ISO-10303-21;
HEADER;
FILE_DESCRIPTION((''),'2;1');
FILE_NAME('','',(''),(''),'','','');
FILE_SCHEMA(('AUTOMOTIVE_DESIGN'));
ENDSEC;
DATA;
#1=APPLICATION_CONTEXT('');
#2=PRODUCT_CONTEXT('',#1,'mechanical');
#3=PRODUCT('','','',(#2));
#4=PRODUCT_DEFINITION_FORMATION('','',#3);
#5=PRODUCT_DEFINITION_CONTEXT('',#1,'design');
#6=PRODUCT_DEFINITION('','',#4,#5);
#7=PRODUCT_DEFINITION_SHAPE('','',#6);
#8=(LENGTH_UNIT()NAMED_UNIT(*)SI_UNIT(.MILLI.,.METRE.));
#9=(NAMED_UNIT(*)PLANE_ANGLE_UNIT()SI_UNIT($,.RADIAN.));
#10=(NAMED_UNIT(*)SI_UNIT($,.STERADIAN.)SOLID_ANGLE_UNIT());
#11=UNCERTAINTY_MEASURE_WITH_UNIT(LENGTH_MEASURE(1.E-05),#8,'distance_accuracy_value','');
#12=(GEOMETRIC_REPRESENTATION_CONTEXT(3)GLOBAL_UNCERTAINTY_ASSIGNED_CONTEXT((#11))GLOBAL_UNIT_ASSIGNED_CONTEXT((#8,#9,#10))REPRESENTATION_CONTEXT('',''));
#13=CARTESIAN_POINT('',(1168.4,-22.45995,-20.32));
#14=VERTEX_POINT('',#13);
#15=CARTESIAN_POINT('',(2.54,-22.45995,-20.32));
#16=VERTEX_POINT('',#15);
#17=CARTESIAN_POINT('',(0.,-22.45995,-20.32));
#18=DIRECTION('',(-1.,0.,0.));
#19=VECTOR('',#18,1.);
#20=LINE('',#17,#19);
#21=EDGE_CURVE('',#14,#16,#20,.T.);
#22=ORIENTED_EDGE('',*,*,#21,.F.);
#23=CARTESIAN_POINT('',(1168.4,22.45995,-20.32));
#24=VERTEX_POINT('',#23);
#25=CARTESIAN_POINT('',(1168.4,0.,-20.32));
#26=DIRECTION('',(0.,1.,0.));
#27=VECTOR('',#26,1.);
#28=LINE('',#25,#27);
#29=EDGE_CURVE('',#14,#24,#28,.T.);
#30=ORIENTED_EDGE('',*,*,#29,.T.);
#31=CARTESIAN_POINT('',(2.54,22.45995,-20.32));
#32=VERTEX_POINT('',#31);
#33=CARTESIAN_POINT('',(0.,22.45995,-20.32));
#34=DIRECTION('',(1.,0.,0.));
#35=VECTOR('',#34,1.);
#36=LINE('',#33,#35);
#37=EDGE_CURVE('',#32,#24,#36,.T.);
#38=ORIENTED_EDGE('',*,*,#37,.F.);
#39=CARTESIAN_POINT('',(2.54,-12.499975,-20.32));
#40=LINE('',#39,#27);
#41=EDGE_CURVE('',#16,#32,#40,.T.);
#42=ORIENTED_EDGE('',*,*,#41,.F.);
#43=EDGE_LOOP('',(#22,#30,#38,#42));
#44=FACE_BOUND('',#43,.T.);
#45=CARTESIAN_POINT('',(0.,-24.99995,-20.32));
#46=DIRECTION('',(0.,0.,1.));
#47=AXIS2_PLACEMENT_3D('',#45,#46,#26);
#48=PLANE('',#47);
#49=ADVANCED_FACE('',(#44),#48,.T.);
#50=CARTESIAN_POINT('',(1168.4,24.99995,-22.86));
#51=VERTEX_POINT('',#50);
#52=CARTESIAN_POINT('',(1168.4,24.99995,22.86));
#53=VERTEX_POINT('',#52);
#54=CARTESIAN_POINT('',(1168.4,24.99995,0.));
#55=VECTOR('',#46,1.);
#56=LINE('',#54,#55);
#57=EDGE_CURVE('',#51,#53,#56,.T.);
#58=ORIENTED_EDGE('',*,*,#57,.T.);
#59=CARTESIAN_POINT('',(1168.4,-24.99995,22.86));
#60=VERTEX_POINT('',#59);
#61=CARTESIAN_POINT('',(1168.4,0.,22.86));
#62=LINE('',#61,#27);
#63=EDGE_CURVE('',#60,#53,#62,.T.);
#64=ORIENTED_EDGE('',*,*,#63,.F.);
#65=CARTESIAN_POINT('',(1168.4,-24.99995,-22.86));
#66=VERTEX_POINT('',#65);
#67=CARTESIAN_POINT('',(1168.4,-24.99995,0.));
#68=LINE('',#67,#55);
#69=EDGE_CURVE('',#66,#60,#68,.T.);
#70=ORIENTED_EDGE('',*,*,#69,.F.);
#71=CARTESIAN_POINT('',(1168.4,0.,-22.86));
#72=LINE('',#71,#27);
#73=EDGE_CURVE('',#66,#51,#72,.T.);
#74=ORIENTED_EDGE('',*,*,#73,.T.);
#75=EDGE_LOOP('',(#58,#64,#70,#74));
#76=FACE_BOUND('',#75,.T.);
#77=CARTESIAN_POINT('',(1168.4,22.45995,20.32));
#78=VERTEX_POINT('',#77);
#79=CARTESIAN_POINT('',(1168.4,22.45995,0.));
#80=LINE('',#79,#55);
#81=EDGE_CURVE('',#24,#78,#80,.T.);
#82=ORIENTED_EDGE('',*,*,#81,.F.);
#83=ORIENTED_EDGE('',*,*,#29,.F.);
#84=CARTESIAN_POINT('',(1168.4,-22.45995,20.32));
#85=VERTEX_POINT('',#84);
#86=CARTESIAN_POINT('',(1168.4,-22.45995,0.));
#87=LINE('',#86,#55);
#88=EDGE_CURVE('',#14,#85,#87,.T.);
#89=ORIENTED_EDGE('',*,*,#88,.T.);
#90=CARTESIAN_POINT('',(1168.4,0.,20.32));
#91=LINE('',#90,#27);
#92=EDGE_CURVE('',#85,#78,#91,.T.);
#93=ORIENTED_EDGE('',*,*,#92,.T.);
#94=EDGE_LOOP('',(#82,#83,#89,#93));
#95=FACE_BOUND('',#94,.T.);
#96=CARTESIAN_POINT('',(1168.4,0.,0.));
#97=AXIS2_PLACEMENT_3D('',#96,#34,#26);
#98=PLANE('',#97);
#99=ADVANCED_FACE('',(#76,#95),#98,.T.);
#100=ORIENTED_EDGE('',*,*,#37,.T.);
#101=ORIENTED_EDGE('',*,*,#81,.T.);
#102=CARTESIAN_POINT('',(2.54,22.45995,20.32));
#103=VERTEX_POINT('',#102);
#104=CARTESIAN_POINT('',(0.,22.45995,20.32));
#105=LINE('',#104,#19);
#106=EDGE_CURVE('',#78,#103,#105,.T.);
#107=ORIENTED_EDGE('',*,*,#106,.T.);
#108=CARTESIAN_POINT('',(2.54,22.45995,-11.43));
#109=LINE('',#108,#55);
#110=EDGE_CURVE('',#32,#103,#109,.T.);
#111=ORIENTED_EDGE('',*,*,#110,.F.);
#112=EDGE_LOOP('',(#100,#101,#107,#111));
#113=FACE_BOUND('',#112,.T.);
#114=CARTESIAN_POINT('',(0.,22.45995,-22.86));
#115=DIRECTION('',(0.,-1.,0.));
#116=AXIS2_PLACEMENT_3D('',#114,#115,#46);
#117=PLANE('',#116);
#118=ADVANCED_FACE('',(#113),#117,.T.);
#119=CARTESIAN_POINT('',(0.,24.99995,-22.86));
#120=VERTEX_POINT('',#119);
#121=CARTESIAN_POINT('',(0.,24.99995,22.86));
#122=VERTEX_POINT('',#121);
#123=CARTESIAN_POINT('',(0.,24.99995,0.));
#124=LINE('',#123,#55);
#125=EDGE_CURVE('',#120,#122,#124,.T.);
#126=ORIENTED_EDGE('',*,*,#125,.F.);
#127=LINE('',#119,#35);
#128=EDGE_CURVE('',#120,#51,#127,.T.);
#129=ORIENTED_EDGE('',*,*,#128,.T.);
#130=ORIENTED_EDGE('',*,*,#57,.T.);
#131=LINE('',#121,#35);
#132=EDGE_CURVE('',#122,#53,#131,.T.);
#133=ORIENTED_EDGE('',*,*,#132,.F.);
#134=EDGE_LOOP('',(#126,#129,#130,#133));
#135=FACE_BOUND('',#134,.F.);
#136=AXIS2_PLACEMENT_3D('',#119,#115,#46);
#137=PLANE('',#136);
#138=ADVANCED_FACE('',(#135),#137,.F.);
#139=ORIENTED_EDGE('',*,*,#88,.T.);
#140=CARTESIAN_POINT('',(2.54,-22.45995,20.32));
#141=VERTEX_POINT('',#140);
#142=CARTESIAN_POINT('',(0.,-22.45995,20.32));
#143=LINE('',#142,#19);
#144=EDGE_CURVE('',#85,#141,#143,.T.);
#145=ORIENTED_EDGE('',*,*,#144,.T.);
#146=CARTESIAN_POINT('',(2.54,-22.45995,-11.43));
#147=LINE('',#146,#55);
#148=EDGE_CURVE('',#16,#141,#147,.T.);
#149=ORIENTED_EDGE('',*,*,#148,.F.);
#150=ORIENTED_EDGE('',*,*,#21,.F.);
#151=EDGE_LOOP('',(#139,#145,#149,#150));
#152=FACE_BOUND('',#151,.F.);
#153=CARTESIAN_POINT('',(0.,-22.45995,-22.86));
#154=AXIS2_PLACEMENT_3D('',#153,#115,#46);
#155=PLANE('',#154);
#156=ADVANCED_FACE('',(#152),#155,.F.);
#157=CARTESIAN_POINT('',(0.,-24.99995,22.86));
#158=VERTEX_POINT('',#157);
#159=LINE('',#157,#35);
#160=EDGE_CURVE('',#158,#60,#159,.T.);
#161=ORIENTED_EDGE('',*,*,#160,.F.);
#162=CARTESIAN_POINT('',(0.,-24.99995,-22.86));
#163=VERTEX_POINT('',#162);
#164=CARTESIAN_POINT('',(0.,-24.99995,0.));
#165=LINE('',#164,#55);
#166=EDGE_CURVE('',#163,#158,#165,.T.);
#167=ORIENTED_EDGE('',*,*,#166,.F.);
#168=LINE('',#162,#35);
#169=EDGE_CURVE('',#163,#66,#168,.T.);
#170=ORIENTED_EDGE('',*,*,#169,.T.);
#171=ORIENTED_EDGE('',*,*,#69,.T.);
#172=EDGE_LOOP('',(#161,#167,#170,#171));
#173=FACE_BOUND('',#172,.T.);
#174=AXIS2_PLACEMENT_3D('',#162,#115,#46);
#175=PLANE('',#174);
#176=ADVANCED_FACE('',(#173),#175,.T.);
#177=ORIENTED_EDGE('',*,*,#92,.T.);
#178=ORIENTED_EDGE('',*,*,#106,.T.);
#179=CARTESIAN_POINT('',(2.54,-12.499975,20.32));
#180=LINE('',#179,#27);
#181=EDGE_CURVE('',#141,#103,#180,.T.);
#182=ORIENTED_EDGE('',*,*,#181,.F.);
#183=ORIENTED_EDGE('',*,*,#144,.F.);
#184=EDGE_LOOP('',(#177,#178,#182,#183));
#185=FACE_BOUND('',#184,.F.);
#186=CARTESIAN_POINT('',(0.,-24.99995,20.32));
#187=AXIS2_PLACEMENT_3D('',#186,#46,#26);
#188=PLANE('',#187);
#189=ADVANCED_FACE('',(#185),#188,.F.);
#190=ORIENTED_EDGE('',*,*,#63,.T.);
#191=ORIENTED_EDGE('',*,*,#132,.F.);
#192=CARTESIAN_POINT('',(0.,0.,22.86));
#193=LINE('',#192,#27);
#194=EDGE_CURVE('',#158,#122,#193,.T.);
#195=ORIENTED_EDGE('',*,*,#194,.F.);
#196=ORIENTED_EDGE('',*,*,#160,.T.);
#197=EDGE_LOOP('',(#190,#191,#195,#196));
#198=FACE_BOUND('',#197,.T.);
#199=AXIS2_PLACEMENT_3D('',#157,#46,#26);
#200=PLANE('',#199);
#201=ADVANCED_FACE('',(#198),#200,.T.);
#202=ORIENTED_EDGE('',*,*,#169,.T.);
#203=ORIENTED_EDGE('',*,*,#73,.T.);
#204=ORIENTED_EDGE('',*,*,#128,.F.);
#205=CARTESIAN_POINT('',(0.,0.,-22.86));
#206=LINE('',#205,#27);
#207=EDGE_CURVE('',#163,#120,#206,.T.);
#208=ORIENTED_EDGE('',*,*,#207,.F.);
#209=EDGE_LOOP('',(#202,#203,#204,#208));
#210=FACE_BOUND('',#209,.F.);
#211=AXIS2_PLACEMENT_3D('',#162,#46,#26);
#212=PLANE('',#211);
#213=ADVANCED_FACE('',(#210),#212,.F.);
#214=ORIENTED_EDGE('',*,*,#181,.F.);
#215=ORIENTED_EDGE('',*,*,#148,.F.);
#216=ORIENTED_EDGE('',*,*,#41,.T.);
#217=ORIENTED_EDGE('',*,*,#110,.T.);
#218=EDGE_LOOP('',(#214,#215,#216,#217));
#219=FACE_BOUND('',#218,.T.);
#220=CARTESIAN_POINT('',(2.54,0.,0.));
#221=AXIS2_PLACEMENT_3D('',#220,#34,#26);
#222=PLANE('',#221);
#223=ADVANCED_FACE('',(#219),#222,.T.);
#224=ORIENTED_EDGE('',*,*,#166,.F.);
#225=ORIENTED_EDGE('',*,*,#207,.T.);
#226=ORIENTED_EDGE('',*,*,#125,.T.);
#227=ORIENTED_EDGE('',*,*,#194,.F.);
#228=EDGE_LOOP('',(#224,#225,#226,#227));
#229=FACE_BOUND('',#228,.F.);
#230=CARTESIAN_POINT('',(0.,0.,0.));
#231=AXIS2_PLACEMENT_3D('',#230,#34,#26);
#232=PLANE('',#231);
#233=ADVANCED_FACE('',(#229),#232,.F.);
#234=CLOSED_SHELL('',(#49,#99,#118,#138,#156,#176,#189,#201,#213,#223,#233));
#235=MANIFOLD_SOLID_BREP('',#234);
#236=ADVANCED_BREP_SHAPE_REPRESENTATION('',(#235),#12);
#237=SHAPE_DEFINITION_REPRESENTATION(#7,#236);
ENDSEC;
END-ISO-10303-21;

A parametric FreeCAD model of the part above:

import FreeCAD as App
import Part
import Sketcher
from FreeCAD import Vector
Q = App.Units.Quantity


def faces_at(feature, points):
    """Names of the faces that lie closest to the given points."""
    faces = feature.Shape.Faces
    near = lambda p: min(range(len(faces)), key=lambda i: faces[i].distToShape(Part.Vertex(*p))[0])
    return sorted({f"Face{near(p) + 1}" for p in points})

doc = App.newDocument("Part")
body = doc.addObject("PartDesign::Body", "Body")

sketch1 = body.newObject("Sketcher::SketchObject", "Sketch")
sketch1.AttachmentSupport = (doc.getObject("YZ_Plane"), [""])
sketch1.MapMode = "FlatFace"
sketch1.addGeometry([
    Part.LineSegment(Vector(-25, 23, 0), Vector(-25, -23, 0)),
    Part.LineSegment(Vector(-25, -23, 0), Vector(25, -23, 0)),
    Part.LineSegment(Vector(25, -23, 0), Vector(25, 23, 0)),
    Part.LineSegment(Vector(25, 23, 0), Vector(-25, 23, 0)),
], False)
sketch1.addConstraint([
    Sketcher.Constraint("Coincident", 0, 2, 1, 1),
    Sketcher.Constraint("Coincident", 1, 2, 2, 1),
    Sketcher.Constraint("Coincident", 2, 2, 3, 1),
    Sketcher.Constraint("Coincident", 3, 2, 0, 1),
    Sketcher.Constraint("Vertical", 0),
    Sketcher.Constraint("Horizontal", 1),
    Sketcher.Constraint("Vertical", 2),
    Sketcher.Constraint("Horizontal", 3),
    Sketcher.Constraint("Symmetric", 0, 2, 2, 2, -1, 1),
    Sketcher.Constraint("DistanceY", 0, 2, 0, 1, Q("1.8 in")),
    Sketcher.Constraint("DistanceX", 1, 1, 1, 2, Q("1.9685 in")),
])
pad1 = body.newObject("PartDesign::Pad", "Pad")
pad1.Profile = sketch1
pad1.Length = Q("46 in")
doc.recompute()

thickness = body.newObject("PartDesign::Thickness", "Thickness")
thickness.Base = (pad1, faces_at(pad1, [(1168.4, 0, 0)]))
thickness.Value = Q("0.1 in")
thickness.Reversed = True
thickness.Join = "Arc"

doc.recompute()
